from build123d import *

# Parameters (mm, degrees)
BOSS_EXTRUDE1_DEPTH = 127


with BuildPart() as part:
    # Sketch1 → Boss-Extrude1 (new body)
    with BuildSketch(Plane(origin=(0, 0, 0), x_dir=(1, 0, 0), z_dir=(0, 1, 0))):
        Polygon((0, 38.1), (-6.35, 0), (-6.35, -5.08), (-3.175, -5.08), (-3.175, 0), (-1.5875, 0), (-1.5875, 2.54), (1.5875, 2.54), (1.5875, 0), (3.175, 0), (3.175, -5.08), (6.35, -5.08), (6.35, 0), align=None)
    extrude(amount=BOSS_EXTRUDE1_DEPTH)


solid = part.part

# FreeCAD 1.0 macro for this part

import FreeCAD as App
import Part
import Sketcher

V = App.Vector
Q = App.Units.Quantity

doc = App.newDocument("Part")
params = doc.addObject("Spreadsheet::Sheet", "Params")
for row, (alias, value) in enumerate([
    ("sketch1_height", "0.2 in"),
    ("sketch1_height2", "0.1 in"),
    ("sketch1_width", "0.125 in"),
    ("sketch1_width2", "0.0625 in"),
    ("pad1_length", "5 in"),
], start=1):
    params.set(f"A{row}", alias)
    params.set(f"B{row}", "=" + value)
    params.setAlias(f"B{row}", alias)

body = doc.addObject("PartDesign::Body", "Body")

sketch1 = body.newObject("Sketcher::SketchObject", "Sketch")
sketch1.AttachmentSupport = (doc.getObject("XZ_Plane"), [""])
sketch1.MapMode = "FlatFace"
sketch1.addGeometry([
    Part.LineSegment(V(0, -38.1, 0), V(-6.35, 0, 0)),
    Part.LineSegment(V(-6.35, 0, 0), V(-6.35, 5.08, 0)),
    Part.LineSegment(V(-6.35, 5.08, 0), V(-3.175, 5.08, 0)),
    Part.LineSegment(V(-3.175, 5.08, 0), V(-3.175, 0, 0)),
    Part.LineSegment(V(-3.175, 0, 0), V(-1.5875, 0, 0)),
    Part.LineSegment(V(-1.5875, 0, 0), V(-1.5875, -2.54, 0)),
    Part.LineSegment(V(-1.5875, -2.54, 0), V(1.5875, -2.54, 0)),
    Part.LineSegment(V(1.5875, -2.54, 0), V(1.5875, 0, 0)),
    Part.LineSegment(V(1.5875, 0, 0), V(3.175, 0, 0)),
    Part.LineSegment(V(3.175, 0, 0), V(3.175, 5.08, 0)),
    Part.LineSegment(V(3.175, 5.08, 0), V(6.35, 5.08, 0)),
    Part.LineSegment(V(6.35, 5.08, 0), V(6.35, 0, 0)),
    Part.LineSegment(V(6.35, 0, 0), V(0, -38.1, 0)),
], False)
sketch1.addConstraint([
    Sketcher.Constraint("Coincident", 0, 2, 1, 1),
    Sketcher.Constraint("Coincident", 1, 2, 2, 1),
    Sketcher.Constraint("Coincident", 2, 2, 3, 1),
    Sketcher.Constraint("Coincident", 3, 2, 4, 1),
    Sketcher.Constraint("Coincident", 4, 2, 5, 1),
    Sketcher.Constraint("Coincident", 5, 2, 6, 1),
    Sketcher.Constraint("Coincident", 6, 2, 7, 1),
    Sketcher.Constraint("Coincident", 7, 2, 8, 1),
    Sketcher.Constraint("Coincident", 8, 2, 9, 1),
    Sketcher.Constraint("Coincident", 9, 2, 10, 1),
    Sketcher.Constraint("Coincident", 10, 2, 11, 1),
    Sketcher.Constraint("Coincident", 11, 2, 12, 1),
    Sketcher.Constraint("Coincident", 12, 2, 0, 1),
    Sketcher.Constraint("Vertical", 1),
    Sketcher.Constraint("Horizontal", 2),
    Sketcher.Constraint("Vertical", 3),
    Sketcher.Constraint("Horizontal", 4),
    Sketcher.Constraint("Vertical", 5),
    Sketcher.Constraint("Horizontal", 6),
    Sketcher.Constraint("Vertical", 7),
    Sketcher.Constraint("Horizontal", 8),
    Sketcher.Constraint("Vertical", 9),
    Sketcher.Constraint("Horizontal", 10),
    Sketcher.Constraint("Vertical", 11),
    Sketcher.Constraint("Symmetric", 4, 2, 7, 2, -1, 1),
    Sketcher.Constraint("Symmetric", 0, 2, 11, 2, -1, 1),
    Sketcher.Constraint("Symmetric", 3, 2, 8, 2, -2),
    Sketcher.Constraint("PointOnObject", 0, 2, -1),
    Sketcher.Constraint("PointOnObject", 12, 2, -2),
    Sketcher.Constraint("Horizontal", 2, 2, 9, 2),
    Sketcher.Constraint("Equal", 2, 6),
    Sketcher.Constraint("DistanceY", 1, 1, 1, 2, Q("0.2 in")),
    Sketcher.Constraint("DistanceY", 5, 2, 5, 1, Q("0.1 in")),
    Sketcher.Constraint("DistanceY", 12, 2, -1, 1, Q("1.5 in")),
    Sketcher.Constraint("DistanceX", 2, 1, 2, 2, Q("0.125 in")),
    Sketcher.Constraint("DistanceX", 4, 1, 4, 2, Q("0.0625 in")),
])
sketch1.setExpression("Constraints[31]", "Params.sketch1_height")
sketch1.setExpression("Constraints[32]", "Params.sketch1_height2")
sketch1.setExpression("Constraints[34]", "Params.sketch1_width")
sketch1.setExpression("Constraints[35]", "Params.sketch1_width2")
pad1 = body.newObject("PartDesign::Pad", "Pad")
pad1.Profile = sketch1
pad1.setExpression("Length", "Params.pad1_length")
pad1.Reversed = True

doc.recompute()
